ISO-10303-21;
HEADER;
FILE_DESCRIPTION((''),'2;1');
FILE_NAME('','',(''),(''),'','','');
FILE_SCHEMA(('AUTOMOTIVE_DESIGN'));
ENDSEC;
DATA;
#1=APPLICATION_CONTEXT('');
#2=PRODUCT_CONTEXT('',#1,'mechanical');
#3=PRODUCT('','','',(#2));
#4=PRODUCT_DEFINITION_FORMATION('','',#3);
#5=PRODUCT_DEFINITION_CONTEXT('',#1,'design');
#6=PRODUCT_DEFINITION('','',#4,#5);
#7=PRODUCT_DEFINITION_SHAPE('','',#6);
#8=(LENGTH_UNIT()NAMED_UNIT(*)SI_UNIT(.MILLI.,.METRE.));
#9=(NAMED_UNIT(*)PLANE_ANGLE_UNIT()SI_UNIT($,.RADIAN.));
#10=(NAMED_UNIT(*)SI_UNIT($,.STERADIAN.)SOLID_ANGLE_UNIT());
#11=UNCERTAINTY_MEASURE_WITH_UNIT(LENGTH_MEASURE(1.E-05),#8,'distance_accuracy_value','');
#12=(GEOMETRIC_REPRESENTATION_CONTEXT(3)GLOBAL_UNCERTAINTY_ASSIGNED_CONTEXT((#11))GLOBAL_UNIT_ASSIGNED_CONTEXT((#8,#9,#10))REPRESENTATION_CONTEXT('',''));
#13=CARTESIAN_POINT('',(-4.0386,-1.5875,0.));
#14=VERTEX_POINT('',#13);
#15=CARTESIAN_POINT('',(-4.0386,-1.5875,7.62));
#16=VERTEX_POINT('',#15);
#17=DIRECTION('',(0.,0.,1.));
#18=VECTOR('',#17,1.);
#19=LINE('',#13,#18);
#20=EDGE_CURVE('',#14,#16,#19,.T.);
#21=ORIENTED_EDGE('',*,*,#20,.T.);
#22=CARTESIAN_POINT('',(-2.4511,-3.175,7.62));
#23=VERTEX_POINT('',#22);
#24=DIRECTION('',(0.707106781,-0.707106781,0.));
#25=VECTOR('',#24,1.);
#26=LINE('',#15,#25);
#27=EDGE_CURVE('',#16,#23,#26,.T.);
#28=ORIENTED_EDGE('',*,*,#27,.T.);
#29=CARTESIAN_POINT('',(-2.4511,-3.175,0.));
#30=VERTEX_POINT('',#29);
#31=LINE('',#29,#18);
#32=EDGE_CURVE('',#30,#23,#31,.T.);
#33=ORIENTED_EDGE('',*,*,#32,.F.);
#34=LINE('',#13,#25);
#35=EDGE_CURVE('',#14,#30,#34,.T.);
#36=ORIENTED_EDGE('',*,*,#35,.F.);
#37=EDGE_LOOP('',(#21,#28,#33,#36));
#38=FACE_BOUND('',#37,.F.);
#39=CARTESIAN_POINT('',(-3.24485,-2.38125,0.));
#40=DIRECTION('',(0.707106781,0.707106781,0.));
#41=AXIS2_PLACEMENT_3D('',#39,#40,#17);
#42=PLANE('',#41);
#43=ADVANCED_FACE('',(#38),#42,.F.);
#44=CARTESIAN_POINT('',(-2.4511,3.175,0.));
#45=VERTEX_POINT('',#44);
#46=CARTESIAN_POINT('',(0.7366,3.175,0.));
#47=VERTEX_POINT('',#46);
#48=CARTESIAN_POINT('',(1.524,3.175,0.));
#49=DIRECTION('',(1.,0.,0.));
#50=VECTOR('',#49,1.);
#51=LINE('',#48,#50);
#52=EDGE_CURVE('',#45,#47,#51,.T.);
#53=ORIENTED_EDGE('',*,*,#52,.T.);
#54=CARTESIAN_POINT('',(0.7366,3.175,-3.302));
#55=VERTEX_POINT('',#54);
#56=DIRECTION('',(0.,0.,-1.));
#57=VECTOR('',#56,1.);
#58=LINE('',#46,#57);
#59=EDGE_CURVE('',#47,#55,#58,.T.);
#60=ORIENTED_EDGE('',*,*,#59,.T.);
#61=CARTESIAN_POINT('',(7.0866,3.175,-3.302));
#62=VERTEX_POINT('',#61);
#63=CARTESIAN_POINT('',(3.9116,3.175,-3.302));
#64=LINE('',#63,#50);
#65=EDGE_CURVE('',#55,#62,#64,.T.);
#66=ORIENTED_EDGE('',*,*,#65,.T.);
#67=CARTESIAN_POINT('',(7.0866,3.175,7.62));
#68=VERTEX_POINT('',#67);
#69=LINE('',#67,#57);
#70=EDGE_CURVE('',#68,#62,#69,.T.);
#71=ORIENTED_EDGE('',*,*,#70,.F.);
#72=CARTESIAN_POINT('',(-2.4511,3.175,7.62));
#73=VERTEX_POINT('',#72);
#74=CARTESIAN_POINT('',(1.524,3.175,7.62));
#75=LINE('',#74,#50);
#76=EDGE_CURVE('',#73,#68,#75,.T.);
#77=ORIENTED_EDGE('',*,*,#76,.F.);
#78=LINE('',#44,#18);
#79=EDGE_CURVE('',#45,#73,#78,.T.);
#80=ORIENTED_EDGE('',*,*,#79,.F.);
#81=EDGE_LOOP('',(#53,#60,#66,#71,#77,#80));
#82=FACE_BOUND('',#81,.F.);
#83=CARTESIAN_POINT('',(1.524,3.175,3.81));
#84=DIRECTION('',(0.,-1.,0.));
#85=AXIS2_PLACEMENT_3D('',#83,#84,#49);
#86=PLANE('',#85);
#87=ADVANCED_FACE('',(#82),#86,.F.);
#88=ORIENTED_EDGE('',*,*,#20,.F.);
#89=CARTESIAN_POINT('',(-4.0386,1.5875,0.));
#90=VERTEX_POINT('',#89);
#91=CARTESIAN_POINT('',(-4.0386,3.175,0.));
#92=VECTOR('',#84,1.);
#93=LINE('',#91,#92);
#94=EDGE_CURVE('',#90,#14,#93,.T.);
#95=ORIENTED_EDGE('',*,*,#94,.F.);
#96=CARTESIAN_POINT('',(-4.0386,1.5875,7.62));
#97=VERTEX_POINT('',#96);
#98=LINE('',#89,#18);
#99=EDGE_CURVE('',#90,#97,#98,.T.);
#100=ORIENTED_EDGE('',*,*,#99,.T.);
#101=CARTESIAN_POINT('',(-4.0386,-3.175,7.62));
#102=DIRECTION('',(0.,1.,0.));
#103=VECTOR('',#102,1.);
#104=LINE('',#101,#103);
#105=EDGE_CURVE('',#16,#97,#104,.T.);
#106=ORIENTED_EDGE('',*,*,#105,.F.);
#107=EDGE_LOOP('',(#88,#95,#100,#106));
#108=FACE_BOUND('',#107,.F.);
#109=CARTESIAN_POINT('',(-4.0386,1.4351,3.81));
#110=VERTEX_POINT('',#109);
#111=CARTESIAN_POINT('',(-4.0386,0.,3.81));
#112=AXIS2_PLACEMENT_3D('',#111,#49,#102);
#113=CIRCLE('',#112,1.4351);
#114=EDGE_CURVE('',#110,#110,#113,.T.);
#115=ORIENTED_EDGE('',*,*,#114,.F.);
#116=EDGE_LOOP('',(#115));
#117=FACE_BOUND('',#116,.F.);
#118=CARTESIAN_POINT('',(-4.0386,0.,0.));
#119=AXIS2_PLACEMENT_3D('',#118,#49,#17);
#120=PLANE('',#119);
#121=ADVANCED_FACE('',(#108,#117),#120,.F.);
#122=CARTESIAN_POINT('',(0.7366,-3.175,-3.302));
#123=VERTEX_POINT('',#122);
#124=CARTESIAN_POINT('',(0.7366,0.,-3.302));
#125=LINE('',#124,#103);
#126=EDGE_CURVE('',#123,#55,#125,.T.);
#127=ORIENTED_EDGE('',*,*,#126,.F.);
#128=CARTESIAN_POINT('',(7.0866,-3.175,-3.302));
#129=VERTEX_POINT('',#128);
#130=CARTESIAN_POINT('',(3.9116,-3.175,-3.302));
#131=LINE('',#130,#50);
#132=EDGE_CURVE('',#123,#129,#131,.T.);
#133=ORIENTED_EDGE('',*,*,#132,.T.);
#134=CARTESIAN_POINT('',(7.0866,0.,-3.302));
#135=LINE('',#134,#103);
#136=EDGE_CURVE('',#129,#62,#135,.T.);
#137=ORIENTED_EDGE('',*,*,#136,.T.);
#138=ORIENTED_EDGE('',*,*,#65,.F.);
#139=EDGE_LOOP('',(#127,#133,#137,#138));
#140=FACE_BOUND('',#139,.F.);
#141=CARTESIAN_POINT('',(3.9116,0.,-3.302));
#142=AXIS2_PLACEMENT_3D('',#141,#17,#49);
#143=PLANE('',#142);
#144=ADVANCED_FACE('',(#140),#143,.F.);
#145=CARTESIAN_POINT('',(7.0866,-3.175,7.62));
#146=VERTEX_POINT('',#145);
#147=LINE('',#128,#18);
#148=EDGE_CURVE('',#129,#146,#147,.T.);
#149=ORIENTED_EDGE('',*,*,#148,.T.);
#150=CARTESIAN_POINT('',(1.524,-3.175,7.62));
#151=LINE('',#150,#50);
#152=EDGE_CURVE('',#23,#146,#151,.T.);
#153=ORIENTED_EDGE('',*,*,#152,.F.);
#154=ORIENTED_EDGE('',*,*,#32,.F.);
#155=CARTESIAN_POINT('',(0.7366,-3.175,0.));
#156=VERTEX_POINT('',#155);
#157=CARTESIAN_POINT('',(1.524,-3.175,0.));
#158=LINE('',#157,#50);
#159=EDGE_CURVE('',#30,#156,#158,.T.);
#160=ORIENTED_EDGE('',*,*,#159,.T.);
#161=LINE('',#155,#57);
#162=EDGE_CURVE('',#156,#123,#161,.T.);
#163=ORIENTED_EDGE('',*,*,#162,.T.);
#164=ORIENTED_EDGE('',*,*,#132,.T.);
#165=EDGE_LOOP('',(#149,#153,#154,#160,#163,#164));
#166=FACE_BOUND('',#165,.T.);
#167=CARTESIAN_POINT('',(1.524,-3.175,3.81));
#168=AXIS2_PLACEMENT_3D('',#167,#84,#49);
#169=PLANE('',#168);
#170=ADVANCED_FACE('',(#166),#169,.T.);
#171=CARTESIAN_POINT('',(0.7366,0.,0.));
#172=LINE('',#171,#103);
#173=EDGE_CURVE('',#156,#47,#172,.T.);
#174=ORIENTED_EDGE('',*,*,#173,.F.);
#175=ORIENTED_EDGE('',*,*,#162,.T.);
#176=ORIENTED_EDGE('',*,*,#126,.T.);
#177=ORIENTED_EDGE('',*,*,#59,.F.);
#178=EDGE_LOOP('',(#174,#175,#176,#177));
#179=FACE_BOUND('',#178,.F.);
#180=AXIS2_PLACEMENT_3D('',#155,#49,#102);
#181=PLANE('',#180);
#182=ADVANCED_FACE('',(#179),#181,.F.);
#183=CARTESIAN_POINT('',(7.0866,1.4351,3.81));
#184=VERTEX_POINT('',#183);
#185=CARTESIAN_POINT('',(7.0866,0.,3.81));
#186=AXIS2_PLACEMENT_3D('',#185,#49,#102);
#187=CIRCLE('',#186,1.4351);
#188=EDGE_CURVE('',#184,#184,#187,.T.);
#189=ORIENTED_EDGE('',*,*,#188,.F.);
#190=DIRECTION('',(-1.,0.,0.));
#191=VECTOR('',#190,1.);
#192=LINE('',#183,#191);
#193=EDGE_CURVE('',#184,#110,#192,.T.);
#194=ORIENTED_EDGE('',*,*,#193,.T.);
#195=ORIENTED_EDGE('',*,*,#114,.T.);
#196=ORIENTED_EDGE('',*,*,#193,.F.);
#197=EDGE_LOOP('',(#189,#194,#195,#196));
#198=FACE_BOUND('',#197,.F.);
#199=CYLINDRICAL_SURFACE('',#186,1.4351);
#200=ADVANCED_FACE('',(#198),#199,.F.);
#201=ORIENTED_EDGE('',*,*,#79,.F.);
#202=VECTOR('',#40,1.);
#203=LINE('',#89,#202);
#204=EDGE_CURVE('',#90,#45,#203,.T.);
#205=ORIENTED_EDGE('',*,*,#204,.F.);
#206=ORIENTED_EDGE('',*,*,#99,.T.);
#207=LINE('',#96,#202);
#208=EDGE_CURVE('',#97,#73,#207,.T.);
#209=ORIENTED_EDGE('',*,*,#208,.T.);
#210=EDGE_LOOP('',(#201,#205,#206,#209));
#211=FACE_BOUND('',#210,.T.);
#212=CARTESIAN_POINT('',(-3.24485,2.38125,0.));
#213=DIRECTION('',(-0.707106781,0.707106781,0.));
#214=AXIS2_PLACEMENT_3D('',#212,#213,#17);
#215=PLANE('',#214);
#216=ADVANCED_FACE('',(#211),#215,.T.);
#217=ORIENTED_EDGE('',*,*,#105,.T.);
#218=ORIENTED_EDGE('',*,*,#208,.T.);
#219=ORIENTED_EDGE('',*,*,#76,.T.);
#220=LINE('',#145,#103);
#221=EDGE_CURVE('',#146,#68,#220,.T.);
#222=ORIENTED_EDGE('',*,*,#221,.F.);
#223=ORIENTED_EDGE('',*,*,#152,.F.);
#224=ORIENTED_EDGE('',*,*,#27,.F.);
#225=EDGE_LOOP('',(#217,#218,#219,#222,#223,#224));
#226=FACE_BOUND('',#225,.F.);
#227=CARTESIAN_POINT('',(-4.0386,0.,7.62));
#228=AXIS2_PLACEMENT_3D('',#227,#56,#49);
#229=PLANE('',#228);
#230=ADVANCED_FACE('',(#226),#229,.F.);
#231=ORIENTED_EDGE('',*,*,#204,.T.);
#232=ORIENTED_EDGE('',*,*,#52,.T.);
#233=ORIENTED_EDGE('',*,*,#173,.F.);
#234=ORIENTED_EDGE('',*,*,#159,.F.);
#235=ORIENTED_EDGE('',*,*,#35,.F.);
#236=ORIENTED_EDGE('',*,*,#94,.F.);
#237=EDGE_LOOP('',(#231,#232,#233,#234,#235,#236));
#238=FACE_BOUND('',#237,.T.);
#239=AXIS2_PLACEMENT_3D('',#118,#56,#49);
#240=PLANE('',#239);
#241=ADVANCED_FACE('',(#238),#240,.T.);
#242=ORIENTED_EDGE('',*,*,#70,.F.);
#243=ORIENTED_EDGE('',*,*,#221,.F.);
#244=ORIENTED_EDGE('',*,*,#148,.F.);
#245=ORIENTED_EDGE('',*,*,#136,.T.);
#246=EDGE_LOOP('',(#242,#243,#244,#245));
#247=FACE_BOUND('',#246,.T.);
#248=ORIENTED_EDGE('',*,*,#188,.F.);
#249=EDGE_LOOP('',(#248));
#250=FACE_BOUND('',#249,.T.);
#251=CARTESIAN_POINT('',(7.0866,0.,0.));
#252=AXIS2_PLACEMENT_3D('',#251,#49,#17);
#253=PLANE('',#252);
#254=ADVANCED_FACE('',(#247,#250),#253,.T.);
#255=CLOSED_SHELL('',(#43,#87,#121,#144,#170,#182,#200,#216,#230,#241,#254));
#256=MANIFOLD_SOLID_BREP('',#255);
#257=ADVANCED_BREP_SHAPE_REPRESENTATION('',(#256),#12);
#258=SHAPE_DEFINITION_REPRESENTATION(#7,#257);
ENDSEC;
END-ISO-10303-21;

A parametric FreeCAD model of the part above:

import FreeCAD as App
import Part
import Sketcher
Q = App.Units.Quantity


def edges_at(feature, points):
    """Names of the edges that pass closest to the given points."""
    edges = feature.Shape.Edges
    near = lambda p: min(range(len(edges)), key=lambda i: edges[i].distToShape(Part.Vertex(*p))[0])
    return sorted({f"Edge{near(p) + 1}" for p in points})

doc = App.newDocument("Part")
body = doc.addObject("PartDesign::Body", "Body")

sketch1 = doc.addObject("Sketcher::SketchObject", "Sketch")
body.addObject(sketch1)
sketch1.AttachmentSupport = (doc.XY_Plane, [""])
sketch1.MapMode = "FlatFace"
sketch1.addGeometry([
    Part.LineSegment(App.Vector(1, 3, 0), App.Vector(1, -3, 0)),
    Part.LineSegment(App.Vector(1, -3, 0), App.Vector(7, -3, 0)),
    Part.LineSegment(App.Vector(7, -3, 0), App.Vector(7, 3, 0)),
    Part.LineSegment(App.Vector(7, 3, 0), App.Vector(1, 3, 0)),
], False)
sketch1.addConstraint([
    Sketcher.Constraint("Coincident", 0, 2, 1, 1),
    Sketcher.Constraint("Coincident", 1, 2, 2, 1),
    Sketcher.Constraint("Coincident", 2, 2, 3, 1),
    Sketcher.Constraint("Coincident", 3, 2, 0, 1),
    Sketcher.Constraint("Vertical", 0),
    Sketcher.Constraint("Horizontal", 1),
    Sketcher.Constraint("Vertical", 2),
    Sketcher.Constraint("Horizontal", 3),
    Sketcher.Constraint("Equal", 3, 0),
    Sketcher.Constraint("DistanceX", 1, 1, 1, 2, Q("0.25 in")),
    Sketcher.Constraint("DistanceX", -1, 1, 0, 2, Q("0.029 in")),
    Sketcher.Constraint("DistanceY", 0, 2, -1, 1, Q("0.125 in")),
])
pad1 = doc.addObject("PartDesign::Pad", "Pad")
body.addObject(pad1)
pad1.Profile = sketch1
pad1.Length = Q("0.13 in")
pad1.Reversed = True

sketch2 = doc.addObject("Sketcher::SketchObject", "Sketch001")
body.addObject(sketch2)
sketch2.AttachmentSupport = (doc.XZ_Plane, [""])
sketch2.MapMode = "FlatFace"
sketch2.addGeometry([
    Part.LineSegment(App.Vector(-4, 8, 0), App.Vector(-4, 0, 0)),
    Part.LineSegment(App.Vector(-4, 0, 0), App.Vector(7, 0, 0)),
    Part.LineSegment(App.Vector(7, 0, 0), App.Vector(7, 8, 0)),
    Part.LineSegment(App.Vector(7, 8, 0), App.Vector(-4, 8, 0)),
], False)
sketch2.addConstraint([
    Sketcher.Constraint("Coincident", 0, 2, 1, 1),
    Sketcher.Constraint("Coincident", 1, 2, 2, 1),
    Sketcher.Constraint("Coincident", 2, 2, 3, 1),
    Sketcher.Constraint("Coincident", 3, 2, 0, 1),
    Sketcher.Constraint("Vertical", 0),
    Sketcher.Constraint("Horizontal", 1),
    Sketcher.Constraint("Vertical", 2),
    Sketcher.Constraint("Horizontal", 3),
    Sketcher.Constraint("PointOnObject", 0, 2, -1),
    Sketcher.Constraint("DistanceY", 0, 2, 0, 1, Q("0.3 in")),
    Sketcher.Constraint("DistanceX", 1, 1, 1, 2, Q("0.438 in")),
    Sketcher.Constraint("DistanceX", 0, 2, -1, 1, Q("0.159 in")),
])
pad2 = doc.addObject("PartDesign::Pad", "Pad001")
body.addObject(pad2)
pad2.Profile = sketch2
pad2.Length = Q("0.25 in")
pad2.Midplane = True

sketch3 = doc.addObject("Sketcher::SketchObject", "Sketch002")
body.addObject(sketch3)
sketch3.AttachmentSupport = (doc.YZ_Plane, [""])
sketch3.MapMode = "FlatFace"
sketch3.AttachmentOffset = App.Placement(App.Vector(0, 0, 0.279 * 25.4), App.Rotation())
sketch3.addGeometry(Part.Circle(App.Vector(0, 3.8, 0), App.Vector(0, 0, 1), 1.4), False)
sketch3.addConstraint([
    Sketcher.Constraint("PointOnObject", 0, 3, -2),
    Sketcher.Constraint("Diameter", 0, Q("0.113 in")),
    Sketcher.Constraint("DistanceY", -1, 1, 0, 3, Q("0.15 in")),
])
pocket1 = doc.addObject("PartDesign::Pocket", "Pocket")
body.addObject(pocket1)
pocket1.Profile = sketch3
pocket1.Type = "ThroughAll"
doc.recompute()

chamfer = doc.addObject("PartDesign::Chamfer", "Chamfer")
body.addObject(chamfer)
chamfer.Base = (pocket1, edges_at(pocket1, [(-4.039, -3.175, 3.81), (-4.039, 3.175, 3.81)]))
chamfer.Size = Q("0.0625 in")

doc.recompute()
